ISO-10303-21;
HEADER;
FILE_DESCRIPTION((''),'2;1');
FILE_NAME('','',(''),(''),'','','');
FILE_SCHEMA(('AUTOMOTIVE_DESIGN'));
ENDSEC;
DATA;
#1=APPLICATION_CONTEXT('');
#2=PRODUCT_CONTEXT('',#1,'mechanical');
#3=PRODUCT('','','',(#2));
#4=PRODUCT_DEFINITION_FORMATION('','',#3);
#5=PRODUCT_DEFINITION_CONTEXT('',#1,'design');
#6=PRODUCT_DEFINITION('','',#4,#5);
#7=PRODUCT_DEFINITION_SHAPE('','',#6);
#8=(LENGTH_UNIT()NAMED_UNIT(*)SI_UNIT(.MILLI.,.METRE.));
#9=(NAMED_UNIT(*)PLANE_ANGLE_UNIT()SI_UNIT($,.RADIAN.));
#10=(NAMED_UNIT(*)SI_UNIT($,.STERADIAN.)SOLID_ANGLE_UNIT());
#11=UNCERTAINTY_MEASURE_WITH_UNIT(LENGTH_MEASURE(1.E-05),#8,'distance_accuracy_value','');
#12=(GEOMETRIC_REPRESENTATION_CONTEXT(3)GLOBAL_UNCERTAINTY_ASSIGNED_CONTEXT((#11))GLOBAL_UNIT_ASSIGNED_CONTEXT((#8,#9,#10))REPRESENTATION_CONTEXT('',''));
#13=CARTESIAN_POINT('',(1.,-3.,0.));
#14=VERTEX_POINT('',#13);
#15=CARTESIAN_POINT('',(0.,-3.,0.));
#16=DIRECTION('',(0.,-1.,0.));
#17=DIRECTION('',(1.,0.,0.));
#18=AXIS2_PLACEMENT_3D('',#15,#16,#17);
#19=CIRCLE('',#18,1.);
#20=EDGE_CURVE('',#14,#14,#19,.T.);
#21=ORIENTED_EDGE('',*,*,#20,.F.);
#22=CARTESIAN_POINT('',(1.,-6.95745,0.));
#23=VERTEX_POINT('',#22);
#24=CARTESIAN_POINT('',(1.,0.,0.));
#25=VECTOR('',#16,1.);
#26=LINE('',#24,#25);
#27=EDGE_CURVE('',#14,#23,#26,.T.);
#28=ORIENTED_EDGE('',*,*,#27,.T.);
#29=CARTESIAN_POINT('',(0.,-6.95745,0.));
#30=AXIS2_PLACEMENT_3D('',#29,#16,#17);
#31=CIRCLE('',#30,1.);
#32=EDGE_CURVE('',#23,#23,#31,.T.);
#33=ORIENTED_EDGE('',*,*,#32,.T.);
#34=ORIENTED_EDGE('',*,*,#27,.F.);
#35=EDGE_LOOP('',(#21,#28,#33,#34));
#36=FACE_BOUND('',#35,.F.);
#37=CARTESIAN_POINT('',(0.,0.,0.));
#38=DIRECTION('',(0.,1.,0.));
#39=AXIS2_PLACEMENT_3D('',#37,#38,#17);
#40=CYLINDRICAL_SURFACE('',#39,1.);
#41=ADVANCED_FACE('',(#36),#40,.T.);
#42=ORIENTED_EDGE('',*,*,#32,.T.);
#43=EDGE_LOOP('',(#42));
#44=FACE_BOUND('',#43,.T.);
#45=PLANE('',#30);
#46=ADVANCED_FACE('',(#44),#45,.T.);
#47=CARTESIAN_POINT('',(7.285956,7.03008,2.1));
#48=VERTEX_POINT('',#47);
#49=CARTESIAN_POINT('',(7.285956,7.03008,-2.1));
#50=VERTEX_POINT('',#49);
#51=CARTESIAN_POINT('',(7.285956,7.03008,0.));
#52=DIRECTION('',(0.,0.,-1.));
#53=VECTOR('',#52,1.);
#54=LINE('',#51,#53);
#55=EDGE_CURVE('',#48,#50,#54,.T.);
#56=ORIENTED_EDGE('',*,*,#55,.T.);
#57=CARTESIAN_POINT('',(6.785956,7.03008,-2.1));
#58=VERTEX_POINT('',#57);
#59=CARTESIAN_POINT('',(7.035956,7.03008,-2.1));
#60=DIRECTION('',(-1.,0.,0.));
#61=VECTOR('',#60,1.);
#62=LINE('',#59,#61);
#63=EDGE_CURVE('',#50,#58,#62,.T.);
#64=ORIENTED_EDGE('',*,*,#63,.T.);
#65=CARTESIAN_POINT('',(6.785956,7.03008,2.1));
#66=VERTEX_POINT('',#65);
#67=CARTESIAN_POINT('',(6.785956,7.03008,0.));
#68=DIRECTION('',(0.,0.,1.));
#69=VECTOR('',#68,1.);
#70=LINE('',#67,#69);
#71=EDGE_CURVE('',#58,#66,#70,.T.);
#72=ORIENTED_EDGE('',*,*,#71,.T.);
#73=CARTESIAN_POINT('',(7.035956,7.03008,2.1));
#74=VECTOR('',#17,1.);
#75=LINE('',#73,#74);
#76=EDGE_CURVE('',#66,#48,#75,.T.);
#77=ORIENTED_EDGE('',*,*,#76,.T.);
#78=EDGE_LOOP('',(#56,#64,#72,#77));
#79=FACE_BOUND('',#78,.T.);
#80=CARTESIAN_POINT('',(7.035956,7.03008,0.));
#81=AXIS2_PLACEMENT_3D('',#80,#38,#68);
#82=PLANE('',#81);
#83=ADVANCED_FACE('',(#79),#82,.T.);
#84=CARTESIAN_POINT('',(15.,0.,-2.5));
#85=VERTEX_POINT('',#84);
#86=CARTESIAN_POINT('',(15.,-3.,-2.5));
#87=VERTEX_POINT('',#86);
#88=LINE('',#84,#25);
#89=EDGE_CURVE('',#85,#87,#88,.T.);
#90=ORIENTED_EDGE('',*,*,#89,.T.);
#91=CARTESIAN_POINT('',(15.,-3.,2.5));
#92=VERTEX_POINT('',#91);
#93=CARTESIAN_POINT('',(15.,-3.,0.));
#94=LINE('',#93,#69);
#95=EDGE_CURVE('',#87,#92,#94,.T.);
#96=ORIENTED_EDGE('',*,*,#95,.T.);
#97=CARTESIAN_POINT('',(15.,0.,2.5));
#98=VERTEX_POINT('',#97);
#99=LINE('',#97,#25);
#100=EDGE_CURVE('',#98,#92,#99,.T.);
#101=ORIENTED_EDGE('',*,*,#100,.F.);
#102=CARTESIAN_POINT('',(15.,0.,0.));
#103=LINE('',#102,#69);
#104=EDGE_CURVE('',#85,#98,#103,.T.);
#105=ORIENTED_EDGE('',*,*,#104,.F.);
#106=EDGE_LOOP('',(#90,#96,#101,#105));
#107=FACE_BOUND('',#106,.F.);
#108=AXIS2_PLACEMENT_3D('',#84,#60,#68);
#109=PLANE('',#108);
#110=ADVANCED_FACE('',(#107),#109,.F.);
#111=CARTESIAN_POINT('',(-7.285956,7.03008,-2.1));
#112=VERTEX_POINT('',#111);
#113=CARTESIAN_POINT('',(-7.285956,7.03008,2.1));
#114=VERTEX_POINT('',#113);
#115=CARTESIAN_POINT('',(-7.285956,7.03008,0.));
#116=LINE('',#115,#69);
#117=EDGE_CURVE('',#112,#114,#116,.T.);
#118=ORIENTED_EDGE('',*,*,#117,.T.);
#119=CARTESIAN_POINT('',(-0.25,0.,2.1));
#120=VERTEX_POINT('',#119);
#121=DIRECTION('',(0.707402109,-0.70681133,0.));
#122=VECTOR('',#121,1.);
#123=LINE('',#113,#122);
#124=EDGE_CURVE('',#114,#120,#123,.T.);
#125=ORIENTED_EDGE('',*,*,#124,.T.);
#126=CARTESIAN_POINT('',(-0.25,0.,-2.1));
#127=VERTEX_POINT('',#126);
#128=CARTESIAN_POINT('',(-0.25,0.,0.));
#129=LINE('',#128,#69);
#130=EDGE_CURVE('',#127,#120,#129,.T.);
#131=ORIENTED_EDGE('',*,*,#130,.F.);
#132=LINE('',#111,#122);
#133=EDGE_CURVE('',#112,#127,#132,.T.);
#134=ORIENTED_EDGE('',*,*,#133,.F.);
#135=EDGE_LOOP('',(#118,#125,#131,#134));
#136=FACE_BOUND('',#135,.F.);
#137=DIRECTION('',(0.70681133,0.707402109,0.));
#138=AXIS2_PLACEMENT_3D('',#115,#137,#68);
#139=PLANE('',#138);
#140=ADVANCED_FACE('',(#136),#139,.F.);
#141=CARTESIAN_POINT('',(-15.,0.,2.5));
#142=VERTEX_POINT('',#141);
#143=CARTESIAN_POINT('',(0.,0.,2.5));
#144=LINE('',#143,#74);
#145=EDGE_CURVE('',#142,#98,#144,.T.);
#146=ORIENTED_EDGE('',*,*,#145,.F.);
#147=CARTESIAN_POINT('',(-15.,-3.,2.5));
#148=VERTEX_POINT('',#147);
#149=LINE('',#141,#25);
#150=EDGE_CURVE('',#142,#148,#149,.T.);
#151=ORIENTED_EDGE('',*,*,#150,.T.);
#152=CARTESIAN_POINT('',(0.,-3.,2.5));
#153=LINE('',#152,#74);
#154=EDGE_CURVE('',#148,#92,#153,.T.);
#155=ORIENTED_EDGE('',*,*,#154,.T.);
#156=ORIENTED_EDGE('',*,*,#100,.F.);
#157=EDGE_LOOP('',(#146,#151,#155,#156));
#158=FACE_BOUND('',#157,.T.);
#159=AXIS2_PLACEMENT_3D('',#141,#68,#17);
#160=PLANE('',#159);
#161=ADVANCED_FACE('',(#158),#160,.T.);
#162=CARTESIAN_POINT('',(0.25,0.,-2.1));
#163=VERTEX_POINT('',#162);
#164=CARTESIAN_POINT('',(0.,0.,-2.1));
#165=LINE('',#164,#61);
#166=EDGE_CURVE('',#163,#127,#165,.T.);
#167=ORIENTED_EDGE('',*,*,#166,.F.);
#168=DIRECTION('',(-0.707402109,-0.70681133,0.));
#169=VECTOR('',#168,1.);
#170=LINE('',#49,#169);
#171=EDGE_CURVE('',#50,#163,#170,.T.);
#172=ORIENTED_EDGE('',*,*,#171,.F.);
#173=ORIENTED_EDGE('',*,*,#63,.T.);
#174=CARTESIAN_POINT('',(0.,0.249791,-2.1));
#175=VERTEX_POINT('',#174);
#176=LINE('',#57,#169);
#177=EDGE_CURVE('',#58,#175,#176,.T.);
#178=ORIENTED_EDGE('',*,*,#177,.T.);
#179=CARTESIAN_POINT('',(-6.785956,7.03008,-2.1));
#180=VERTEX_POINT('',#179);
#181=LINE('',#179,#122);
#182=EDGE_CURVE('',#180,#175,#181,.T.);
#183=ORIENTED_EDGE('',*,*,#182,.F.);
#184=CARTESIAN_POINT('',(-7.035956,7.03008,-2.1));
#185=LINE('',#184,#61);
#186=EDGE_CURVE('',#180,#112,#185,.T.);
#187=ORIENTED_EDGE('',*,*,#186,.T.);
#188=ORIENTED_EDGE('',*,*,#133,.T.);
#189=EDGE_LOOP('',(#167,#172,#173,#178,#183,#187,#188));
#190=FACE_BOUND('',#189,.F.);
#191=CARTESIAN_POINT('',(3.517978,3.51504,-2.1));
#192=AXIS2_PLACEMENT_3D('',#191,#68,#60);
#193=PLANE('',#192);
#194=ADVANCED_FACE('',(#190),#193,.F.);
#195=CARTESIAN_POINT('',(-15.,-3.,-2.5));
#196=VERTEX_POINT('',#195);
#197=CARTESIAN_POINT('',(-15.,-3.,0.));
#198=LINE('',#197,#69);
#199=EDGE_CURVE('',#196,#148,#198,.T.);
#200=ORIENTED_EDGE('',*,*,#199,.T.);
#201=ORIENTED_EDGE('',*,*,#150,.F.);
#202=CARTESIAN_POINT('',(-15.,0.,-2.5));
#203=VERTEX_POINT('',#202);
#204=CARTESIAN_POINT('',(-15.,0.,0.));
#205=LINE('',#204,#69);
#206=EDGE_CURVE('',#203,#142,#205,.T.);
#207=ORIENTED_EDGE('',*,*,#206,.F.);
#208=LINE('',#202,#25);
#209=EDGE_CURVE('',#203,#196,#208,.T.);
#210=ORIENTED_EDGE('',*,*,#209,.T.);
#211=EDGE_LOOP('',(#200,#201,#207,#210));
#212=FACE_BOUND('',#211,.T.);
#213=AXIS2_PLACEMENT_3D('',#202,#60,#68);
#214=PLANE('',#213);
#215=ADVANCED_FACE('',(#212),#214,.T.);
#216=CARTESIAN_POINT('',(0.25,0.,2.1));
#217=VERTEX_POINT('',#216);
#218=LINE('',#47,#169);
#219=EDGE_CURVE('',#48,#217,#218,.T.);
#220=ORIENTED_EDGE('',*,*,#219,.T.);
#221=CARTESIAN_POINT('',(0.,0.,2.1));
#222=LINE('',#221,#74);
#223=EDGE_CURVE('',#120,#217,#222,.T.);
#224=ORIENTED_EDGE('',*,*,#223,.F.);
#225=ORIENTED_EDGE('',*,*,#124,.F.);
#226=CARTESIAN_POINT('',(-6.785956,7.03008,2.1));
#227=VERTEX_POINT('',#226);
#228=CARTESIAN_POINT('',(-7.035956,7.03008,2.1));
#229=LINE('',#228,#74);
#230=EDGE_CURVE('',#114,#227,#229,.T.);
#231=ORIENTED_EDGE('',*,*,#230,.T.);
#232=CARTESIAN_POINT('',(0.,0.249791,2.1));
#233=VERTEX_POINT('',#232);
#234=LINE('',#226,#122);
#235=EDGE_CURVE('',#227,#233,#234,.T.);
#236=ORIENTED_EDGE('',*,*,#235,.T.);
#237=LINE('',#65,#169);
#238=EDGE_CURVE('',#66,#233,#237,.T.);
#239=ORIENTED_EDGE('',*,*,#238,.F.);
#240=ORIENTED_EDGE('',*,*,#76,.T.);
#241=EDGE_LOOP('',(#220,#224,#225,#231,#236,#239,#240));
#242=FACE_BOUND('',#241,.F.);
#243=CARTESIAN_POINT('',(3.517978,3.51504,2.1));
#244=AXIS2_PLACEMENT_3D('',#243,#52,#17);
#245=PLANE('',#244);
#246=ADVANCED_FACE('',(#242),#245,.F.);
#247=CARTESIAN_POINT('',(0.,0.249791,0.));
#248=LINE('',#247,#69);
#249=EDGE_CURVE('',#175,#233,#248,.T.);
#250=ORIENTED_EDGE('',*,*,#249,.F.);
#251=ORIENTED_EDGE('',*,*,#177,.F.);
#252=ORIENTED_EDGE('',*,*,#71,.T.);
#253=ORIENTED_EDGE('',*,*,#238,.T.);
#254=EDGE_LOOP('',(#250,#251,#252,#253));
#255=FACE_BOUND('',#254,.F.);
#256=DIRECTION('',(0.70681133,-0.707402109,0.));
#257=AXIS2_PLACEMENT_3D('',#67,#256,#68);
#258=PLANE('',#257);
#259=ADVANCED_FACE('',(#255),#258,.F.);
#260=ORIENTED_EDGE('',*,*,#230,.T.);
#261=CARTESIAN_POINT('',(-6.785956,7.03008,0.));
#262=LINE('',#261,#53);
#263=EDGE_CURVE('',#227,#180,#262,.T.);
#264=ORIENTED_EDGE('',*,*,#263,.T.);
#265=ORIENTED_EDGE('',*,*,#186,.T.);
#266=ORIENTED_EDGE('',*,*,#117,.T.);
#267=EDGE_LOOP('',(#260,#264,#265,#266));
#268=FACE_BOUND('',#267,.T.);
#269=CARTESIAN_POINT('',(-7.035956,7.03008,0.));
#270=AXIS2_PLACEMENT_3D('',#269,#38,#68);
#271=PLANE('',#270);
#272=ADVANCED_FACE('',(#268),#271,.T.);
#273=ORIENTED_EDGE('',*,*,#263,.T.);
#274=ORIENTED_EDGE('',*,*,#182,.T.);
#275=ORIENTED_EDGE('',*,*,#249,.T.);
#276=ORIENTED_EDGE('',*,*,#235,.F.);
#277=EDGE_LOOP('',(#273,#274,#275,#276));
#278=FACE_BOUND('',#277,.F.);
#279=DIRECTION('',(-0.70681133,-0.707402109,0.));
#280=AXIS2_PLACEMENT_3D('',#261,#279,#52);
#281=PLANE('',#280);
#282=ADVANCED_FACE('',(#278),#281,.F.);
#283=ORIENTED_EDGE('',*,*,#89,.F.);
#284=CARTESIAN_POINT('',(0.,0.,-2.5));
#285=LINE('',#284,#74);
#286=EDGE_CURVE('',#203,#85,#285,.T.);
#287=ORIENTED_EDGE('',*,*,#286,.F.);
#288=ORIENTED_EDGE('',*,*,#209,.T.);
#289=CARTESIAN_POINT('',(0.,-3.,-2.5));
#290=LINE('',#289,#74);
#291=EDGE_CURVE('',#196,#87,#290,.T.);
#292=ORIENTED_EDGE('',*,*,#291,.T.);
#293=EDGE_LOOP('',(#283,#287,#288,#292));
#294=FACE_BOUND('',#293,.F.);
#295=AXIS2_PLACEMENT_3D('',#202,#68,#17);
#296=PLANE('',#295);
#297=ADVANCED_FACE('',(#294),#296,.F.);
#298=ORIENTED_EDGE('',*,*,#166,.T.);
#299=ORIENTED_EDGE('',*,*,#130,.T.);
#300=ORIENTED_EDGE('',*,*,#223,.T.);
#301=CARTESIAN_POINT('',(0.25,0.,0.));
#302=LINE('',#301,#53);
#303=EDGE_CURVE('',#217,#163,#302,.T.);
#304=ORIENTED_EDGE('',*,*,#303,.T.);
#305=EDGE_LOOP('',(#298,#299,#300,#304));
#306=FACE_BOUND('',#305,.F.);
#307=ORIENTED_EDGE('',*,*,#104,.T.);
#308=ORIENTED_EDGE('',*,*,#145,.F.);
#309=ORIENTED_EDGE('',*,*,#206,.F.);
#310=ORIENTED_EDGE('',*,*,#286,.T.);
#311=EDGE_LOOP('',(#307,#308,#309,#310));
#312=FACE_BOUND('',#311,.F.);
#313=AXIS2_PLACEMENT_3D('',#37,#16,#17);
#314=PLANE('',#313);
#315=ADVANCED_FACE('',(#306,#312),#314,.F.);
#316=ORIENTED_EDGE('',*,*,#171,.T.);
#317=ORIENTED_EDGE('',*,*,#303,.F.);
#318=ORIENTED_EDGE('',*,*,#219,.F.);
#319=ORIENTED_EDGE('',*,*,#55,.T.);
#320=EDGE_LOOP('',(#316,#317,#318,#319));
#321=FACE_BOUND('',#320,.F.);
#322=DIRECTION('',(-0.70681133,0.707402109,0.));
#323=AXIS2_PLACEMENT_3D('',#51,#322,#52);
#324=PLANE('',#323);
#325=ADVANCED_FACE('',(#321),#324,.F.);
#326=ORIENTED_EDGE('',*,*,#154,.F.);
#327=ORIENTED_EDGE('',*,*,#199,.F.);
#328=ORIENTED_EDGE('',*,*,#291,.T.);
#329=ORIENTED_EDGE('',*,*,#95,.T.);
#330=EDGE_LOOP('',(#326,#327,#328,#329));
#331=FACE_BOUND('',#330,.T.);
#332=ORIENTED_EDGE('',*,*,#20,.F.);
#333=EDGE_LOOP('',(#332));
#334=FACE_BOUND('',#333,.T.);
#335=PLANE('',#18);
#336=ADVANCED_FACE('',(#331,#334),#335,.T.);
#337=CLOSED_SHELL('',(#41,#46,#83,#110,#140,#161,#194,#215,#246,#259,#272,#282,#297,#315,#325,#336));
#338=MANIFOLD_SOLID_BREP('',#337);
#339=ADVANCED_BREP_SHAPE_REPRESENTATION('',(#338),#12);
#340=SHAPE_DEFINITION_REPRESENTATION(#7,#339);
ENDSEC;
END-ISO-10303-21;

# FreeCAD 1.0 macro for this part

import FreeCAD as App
import Part
import Sketcher

doc = App.newDocument("Part")
body = doc.addObject("PartDesign::Body", "Body")

sketch1 = body.newObject("Sketcher::SketchObject", "Sketch")
sketch1.AttachmentSupport = (doc.getObject("XZ_Plane"), [""])
sketch1.MapMode = "FlatFace"
sketch1.addGeometry([
    Part.LineSegment(App.Vector(-15, 2.5, 0), App.Vector(-15, -2.5, 0)),
    Part.LineSegment(App.Vector(-15, -2.5, 0), App.Vector(15, -2.5, 0)),
    Part.LineSegment(App.Vector(15, -2.5, 0), App.Vector(15, 2.5, 0)),
    Part.LineSegment(App.Vector(15, 2.5, 0), App.Vector(-15, 2.5, 0)),
    Part.Circle(App.Vector(0, 0, 0), App.Vector(0, 0, 1), 1),
], False)
sketch1.addConstraint([
    Sketcher.Constraint("Coincident", 0, 2, 1, 1),
    Sketcher.Constraint("Coincident", 1, 2, 2, 1),
    Sketcher.Constraint("Coincident", 2, 2, 3, 1),
    Sketcher.Constraint("Coincident", 3, 2, 0, 1),
    Sketcher.Constraint("Vertical", 0),
    Sketcher.Constraint("Horizontal", 1),
    Sketcher.Constraint("Vertical", 2),
    Sketcher.Constraint("Horizontal", 3),
    Sketcher.Constraint("Coincident", 4, 3, -1, 1),
    Sketcher.Constraint("Symmetric", 0, 2, 2, 2, -1, 1),
    Sketcher.Constraint("Diameter", 4, 2.0),
    Sketcher.Constraint("DistanceX", 1, 1, 1, 2, 30.0),
    Sketcher.Constraint("DistanceY", 0, 2, 0, 1, 5.0),
])
pad1 = body.newObject("PartDesign::Pad", "Pad")
pad1.Profile = sketch1
pad1.Length = 3

sketch2 = body.newObject("Sketcher::SketchObject", "Sketch001")
sketch2.AttachmentSupport = (doc.getObject("XZ_Plane"), [""])
sketch2.MapMode = "FlatFace"
sketch2.addGeometry(Part.Circle(App.Vector(0, 0, 0), App.Vector(0, 0, 1), 1), False)
sketch2.addConstraint([
    Sketcher.Constraint("Coincident", 0, 3, -1, 1),
    Sketcher.Constraint("Diameter", 0, 2.0),
])
pad2 = body.newObject("PartDesign::Pad", "Pad001")
pad2.Profile = sketch2
pad2.Length = 6.95745

sketch3 = body.newObject("Sketcher::SketchObject", "Sketch002")
sketch3.AttachmentSupport = (doc.getObject("XZ_Plane"), [""])
sketch3.MapMode = "FlatFace"
sketch3.addGeometry([
    Part.LineSegment(App.Vector(0.2, 2.1, 0), App.Vector(0.2, -2.1, 0)),
    Part.LineSegment(App.Vector(0.2, -2.1, 0), App.Vector(-0.2, -2.1, 0)),
    Part.LineSegment(App.Vector(-0.2, -2.1, 0), App.Vector(-0.2, 2.1, 0)),
    Part.LineSegment(App.Vector(-0.2, 2.1, 0), App.Vector(0.2, 2.1, 0)),
], False)
sketch3.addConstraint([
    Sketcher.Constraint("Coincident", 0, 2, 1, 1),
    Sketcher.Constraint("Coincident", 1, 2, 2, 1),
    Sketcher.Constraint("Coincident", 2, 2, 3, 1),
    Sketcher.Constraint("Coincident", 3, 2, 0, 1),
    Sketcher.Constraint("Vertical", 0),
    Sketcher.Constraint("Horizontal", 1),
    Sketcher.Constraint("Vertical", 2),
    Sketcher.Constraint("Horizontal", 3),
    Sketcher.Constraint("Symmetric", 0, 2, 2, 2, -1, 1),
    Sketcher.Constraint("DistanceX", 1, 2, 1, 1, 0.5),
    Sketcher.Constraint("DistanceY", 0, 2, 0, 1, 4.2),
])

sketch4 = body.newObject("Sketcher::SketchObject", "Sketch003")
sketch4.Placement = App.Placement(App.Vector(0, 0, 0), App.Rotation(App.Vector(0.707402109, -0.70681133, 0), App.Vector(0, 0, 1), App.Vector(-0.70681133, -0.707402109, 0), "ZXY"))
sketch4.addGeometry(Part.LineSegment(App.Vector(-10, 0, 0), App.Vector(0, 0, 0)), False)
sketch4.addConstraint([
    Sketcher.Constraint("Horizontal", 0),
    Sketcher.Constraint("Coincident", 0, 2, -1, 1),
    Sketcher.Constraint("DistanceX", 0, 1, 0, 2, 9.94619),
])
doc.recompute()

additivepipe = body.newObject("PartDesign::AdditivePipe", "AdditivePipe")
additivepipe.Profile = sketch3
additivepipe.Spine = (sketch4, ["Edge1"])

sketch5 = body.newObject("Sketcher::SketchObject", "Sketch004")
sketch5.AttachmentSupport = (doc.getObject("XZ_Plane"), [""])
sketch5.MapMode = "FlatFace"
sketch5.addGeometry([
    Part.LineSegment(App.Vector(0.2, 2.1, 0), App.Vector(0.2, -2.1, 0)),
    Part.LineSegment(App.Vector(0.2, -2.1, 0), App.Vector(-0.2, -2.1, 0)),
    Part.LineSegment(App.Vector(-0.2, -2.1, 0), App.Vector(-0.2, 2.1, 0)),
    Part.LineSegment(App.Vector(-0.2, 2.1, 0), App.Vector(0.2, 2.1, 0)),
], False)
sketch5.addConstraint([
    Sketcher.Constraint("Coincident", 0, 2, 1, 1),
    Sketcher.Constraint("Coincident", 1, 2, 2, 1),
    Sketcher.Constraint("Coincident", 2, 2, 3, 1),
    Sketcher.Constraint("Coincident", 3, 2, 0, 1),
    Sketcher.Constraint("Vertical", 0),
    Sketcher.Constraint("Horizontal", 1),
    Sketcher.Constraint("Vertical", 2),
    Sketcher.Constraint("Horizontal", 3),
    Sketcher.Constraint("Symmetric", 0, 2, 2, 2, -1, 1),
    Sketcher.Constraint("DistanceX", 1, 2, 1, 1, 0.5),
    Sketcher.Constraint("DistanceY", 0, 2, 0, 1, 4.2),
])

sketch6 = body.newObject("Sketcher::SketchObject", "Sketch005")
sketch6.Placement = App.Placement(App.Vector(0, 0, 0), App.Rotation(App.Vector(-0.707402109, -0.70681133, 0), App.Vector(0, 0, 1), App.Vector(-0.70681133, 0.707402109, 0), "ZXY"))
sketch6.addGeometry(Part.LineSegment(App.Vector(-10, 0, 0), App.Vector(0, 0, 0)), False)
sketch6.addConstraint([
    Sketcher.Constraint("Horizontal", 0),
    Sketcher.Constraint("Coincident", 0, 2, -1, 1),
    Sketcher.Constraint("DistanceX", 0, 1, 0, 2, 9.94619),
])
doc.recompute()

additivepipe2 = body.newObject("PartDesign::AdditivePipe", "AdditivePipe001")
additivepipe2.Profile = sketch5
additivepipe2.Spine = (sketch6, ["Edge1"])

doc.recompute()
